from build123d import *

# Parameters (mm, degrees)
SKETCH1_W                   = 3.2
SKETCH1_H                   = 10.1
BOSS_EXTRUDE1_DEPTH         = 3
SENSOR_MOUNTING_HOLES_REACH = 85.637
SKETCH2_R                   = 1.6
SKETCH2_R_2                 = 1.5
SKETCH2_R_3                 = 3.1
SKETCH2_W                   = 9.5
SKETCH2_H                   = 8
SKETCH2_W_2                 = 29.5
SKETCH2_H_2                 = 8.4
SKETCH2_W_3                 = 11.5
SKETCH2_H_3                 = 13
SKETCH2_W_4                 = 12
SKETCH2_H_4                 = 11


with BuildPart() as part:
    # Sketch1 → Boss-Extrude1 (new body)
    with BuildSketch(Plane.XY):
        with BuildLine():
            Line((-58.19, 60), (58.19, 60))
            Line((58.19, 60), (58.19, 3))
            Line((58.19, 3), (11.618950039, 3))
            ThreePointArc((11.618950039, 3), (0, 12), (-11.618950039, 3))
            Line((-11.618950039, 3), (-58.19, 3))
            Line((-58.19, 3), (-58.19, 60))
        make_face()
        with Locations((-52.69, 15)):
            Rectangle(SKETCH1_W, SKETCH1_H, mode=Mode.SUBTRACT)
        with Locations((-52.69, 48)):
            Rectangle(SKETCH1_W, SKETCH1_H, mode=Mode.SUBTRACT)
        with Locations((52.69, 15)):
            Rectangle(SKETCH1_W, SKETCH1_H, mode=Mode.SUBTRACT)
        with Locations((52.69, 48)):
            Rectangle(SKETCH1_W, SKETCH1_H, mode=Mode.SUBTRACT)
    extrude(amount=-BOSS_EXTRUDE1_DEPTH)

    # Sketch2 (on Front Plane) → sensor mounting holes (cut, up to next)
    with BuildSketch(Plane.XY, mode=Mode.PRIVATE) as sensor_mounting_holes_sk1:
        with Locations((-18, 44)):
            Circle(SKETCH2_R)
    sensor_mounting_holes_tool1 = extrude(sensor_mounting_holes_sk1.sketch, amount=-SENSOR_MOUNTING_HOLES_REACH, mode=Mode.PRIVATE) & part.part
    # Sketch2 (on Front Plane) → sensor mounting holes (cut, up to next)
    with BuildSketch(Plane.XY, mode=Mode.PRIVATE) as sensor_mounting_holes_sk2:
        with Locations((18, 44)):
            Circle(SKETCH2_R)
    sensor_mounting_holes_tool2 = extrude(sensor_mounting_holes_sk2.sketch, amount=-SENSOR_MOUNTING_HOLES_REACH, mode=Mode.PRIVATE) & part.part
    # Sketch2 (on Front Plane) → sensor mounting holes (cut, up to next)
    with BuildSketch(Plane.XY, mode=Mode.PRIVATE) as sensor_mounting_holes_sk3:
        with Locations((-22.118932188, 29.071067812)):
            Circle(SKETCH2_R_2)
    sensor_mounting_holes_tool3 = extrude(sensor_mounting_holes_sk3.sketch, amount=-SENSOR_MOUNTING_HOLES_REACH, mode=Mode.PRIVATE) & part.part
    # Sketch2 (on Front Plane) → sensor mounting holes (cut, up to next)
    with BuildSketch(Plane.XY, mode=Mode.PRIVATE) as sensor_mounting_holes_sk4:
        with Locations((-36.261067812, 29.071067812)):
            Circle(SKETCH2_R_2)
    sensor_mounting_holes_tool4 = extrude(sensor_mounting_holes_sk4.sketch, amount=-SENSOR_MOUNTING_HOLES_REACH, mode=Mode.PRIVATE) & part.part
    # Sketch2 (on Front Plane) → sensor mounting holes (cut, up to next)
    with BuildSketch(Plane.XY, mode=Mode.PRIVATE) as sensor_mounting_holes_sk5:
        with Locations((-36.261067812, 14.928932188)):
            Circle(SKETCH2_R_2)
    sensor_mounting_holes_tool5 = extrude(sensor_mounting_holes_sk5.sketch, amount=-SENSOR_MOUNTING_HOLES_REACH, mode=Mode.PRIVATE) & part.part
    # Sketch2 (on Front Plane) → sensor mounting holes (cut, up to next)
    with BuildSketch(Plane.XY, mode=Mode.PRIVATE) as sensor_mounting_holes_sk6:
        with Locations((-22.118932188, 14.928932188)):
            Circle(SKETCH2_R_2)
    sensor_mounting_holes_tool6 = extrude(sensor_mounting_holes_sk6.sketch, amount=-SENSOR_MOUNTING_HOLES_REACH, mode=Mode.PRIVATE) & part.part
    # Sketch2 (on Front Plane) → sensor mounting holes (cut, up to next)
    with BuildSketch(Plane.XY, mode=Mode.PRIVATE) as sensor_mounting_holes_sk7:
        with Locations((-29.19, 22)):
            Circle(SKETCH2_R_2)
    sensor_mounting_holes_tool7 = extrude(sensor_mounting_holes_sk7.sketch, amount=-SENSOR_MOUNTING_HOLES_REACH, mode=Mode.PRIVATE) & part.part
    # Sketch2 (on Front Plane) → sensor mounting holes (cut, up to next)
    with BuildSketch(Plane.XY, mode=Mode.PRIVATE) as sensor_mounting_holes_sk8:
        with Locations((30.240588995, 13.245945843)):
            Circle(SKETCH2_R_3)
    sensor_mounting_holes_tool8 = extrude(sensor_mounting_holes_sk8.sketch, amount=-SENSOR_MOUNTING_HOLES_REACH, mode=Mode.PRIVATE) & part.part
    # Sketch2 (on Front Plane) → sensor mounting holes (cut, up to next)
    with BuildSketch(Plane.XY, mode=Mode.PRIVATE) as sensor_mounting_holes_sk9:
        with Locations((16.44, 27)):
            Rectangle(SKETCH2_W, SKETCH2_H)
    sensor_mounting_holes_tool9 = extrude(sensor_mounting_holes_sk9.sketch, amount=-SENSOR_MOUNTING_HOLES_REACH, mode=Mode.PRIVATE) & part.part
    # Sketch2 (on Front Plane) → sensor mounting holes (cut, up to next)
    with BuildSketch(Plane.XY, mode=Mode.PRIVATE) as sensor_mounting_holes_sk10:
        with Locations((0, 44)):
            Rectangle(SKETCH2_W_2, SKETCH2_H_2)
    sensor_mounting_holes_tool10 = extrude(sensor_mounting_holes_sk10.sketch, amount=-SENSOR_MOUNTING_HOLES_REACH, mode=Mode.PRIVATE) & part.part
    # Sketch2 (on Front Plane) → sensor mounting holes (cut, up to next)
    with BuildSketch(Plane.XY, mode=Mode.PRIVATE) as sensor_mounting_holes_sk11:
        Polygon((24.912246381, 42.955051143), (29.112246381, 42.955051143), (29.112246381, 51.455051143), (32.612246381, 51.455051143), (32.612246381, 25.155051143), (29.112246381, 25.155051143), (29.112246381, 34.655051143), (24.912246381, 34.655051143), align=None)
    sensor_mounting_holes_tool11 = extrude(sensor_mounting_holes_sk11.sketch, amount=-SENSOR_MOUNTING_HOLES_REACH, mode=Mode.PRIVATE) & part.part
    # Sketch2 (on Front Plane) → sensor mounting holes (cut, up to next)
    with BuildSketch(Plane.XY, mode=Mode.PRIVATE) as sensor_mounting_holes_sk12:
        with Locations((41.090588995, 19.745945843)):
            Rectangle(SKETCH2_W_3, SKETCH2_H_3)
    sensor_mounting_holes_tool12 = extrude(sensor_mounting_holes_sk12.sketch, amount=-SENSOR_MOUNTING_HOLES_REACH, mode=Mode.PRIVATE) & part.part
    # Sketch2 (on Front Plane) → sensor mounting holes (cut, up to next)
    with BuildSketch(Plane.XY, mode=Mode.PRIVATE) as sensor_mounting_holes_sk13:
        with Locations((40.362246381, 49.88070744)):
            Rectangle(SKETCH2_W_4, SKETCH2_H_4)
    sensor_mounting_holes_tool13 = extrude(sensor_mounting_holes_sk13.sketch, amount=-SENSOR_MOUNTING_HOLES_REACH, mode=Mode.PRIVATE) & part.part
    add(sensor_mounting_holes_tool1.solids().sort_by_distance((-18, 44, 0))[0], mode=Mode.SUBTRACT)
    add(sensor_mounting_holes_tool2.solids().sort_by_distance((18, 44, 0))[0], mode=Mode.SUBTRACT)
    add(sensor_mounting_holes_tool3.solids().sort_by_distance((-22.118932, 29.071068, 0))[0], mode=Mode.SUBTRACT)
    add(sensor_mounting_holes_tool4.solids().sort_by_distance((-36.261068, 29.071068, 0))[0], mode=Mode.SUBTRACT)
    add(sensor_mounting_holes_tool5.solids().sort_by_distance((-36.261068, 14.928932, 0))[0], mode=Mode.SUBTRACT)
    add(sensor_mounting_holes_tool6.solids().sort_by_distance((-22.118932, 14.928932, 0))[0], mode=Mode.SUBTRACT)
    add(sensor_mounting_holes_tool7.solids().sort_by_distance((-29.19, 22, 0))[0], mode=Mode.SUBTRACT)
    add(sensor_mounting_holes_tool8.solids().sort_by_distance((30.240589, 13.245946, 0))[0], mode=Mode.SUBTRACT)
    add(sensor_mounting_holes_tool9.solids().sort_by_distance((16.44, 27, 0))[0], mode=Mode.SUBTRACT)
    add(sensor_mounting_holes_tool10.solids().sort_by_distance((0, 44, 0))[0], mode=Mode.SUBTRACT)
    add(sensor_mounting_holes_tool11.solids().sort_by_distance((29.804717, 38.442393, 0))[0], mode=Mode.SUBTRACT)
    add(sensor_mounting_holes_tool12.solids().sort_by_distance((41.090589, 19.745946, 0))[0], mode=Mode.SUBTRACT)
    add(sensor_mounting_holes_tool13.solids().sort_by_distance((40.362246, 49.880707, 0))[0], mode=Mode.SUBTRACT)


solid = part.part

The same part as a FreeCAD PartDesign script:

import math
import FreeCAD as App
import Part
import Sketcher
from FreeCAD import Vector

doc = App.newDocument("Part")
body = doc.addObject("PartDesign::Body", "Body")

# Sketch on XY plane
sketch1 = body.newObject("Sketcher::SketchObject", "Sketch")
sketch1.AttachmentSupport = (doc.getObject("XY_Plane"), [""])
sketch1.MapMode = "FlatFace"
sketch1.addGeometry(Part.LineSegment(Vector(58.19, 60, 0), Vector(-58.19, 60, 0)), False)
sketch1.addGeometry(Part.LineSegment(Vector(-58.19, 60, 0), Vector(-58.19, 3, 0)), False)
sketch1.addGeometry(Part.LineSegment(Vector(-58.19, 3, 0), Vector(-11.61895, 3, 0)), False)
sketch1.addGeometry(Part.ArcOfCircle(Part.Circle(Vector(0, 0, 0), Vector(0, 0, 1), 12), math.radians(14.477512), math.radians(165.522488)), False)
sketch1.addGeometry(Part.LineSegment(Vector(11.61895, 3, 0), Vector(58.19, 3, 0)), False)
sketch1.addGeometry(Part.LineSegment(Vector(58.19, 3, 0), Vector(58.19, 60, 0)), False)
sketch1.addGeometry(Part.LineSegment(Vector(51.09, 9.95, 0), Vector(51.09, 20.05, 0)), False)
sketch1.addGeometry(Part.LineSegment(Vector(51.09, 20.05, 0), Vector(54.29, 20.05, 0)), False)
sketch1.addGeometry(Part.LineSegment(Vector(54.29, 20.05, 0), Vector(54.29, 9.95, 0)), False)
sketch1.addGeometry(Part.LineSegment(Vector(54.29, 9.95, 0), Vector(51.09, 9.95, 0)), False)
sketch1.addGeometry(Part.LineSegment(Vector(-54.29, 9.95, 0), Vector(-54.29, 20.05, 0)), False)
sketch1.addGeometry(Part.LineSegment(Vector(-54.29, 20.05, 0), Vector(-51.09, 20.05, 0)), False)
sketch1.addGeometry(Part.LineSegment(Vector(-51.09, 20.05, 0), Vector(-51.09, 9.95, 0)), False)
sketch1.addGeometry(Part.LineSegment(Vector(-51.09, 9.95, 0), Vector(-54.29, 9.95, 0)), False)
sketch1.addGeometry(Part.LineSegment(Vector(51.09, 42.95, 0), Vector(51.09, 53.05, 0)), False)
sketch1.addGeometry(Part.LineSegment(Vector(51.09, 53.05, 0), Vector(54.29, 53.05, 0)), False)
sketch1.addGeometry(Part.LineSegment(Vector(54.29, 53.05, 0), Vector(54.29, 42.95, 0)), False)
sketch1.addGeometry(Part.LineSegment(Vector(54.29, 42.95, 0), Vector(51.09, 42.95, 0)), False)
sketch1.addGeometry(Part.LineSegment(Vector(-54.29, 42.95, 0), Vector(-54.29, 53.05, 0)), False)
sketch1.addGeometry(Part.LineSegment(Vector(-54.29, 53.05, 0), Vector(-51.09, 53.05, 0)), False)
sketch1.addGeometry(Part.LineSegment(Vector(-51.09, 53.05, 0), Vector(-51.09, 42.95, 0)), False)
sketch1.addGeometry(Part.LineSegment(Vector(-51.09, 42.95, 0), Vector(-54.29, 42.95, 0)), False)
sketch1.addConstraint(Sketcher.Constraint("Coincident", 0, 2, 1, 1))
sketch1.addConstraint(Sketcher.Constraint("Coincident", 1, 2, 2, 1))
sketch1.addConstraint(Sketcher.Constraint("Coincident", 2, 2, 3, 2))
sketch1.addConstraint(Sketcher.Constraint("Coincident", 3, 1, 4, 1))
sketch1.addConstraint(Sketcher.Constraint("Coincident", 4, 2, 5, 1))
sketch1.addConstraint(Sketcher.Constraint("Coincident", 5, 2, 0, 1))
sketch1.addConstraint(Sketcher.Constraint("Coincident", 6, 2, 7, 1))
sketch1.addConstraint(Sketcher.Constraint("Coincident", 7, 2, 8, 1))
sketch1.addConstraint(Sketcher.Constraint("Coincident", 8, 2, 9, 1))
sketch1.addConstraint(Sketcher.Constraint("Coincident", 9, 2, 6, 1))
sketch1.addConstraint(Sketcher.Constraint("Coincident", 10, 2, 11, 1))
sketch1.addConstraint(Sketcher.Constraint("Coincident", 11, 2, 12, 1))
sketch1.addConstraint(Sketcher.Constraint("Coincident", 12, 2, 13, 1))
sketch1.addConstraint(Sketcher.Constraint("Coincident", 13, 2, 10, 1))
sketch1.addConstraint(Sketcher.Constraint("Coincident", 14, 2, 15, 1))
sketch1.addConstraint(Sketcher.Constraint("Coincident", 15, 2, 16, 1))
sketch1.addConstraint(Sketcher.Constraint("Coincident", 16, 2, 17, 1))
sketch1.addConstraint(Sketcher.Constraint("Coincident", 17, 2, 14, 1))
sketch1.addConstraint(Sketcher.Constraint("Coincident", 18, 2, 19, 1))
sketch1.addConstraint(Sketcher.Constraint("Coincident", 19, 2, 20, 1))
sketch1.addConstraint(Sketcher.Constraint("Coincident", 20, 2, 21, 1))
sketch1.addConstraint(Sketcher.Constraint("Coincident", 21, 2, 18, 1))
sketch1.addConstraint(Sketcher.Constraint("Horizontal", 0))
sketch1.addConstraint(Sketcher.Constraint("Vertical", 1))
sketch1.addConstraint(Sketcher.Constraint("Horizontal", 2))
sketch1.addConstraint(Sketcher.Constraint("Horizontal", 4))
sketch1.addConstraint(Sketcher.Constraint("Vertical", 5))
sketch1.addConstraint(Sketcher.Constraint("Vertical", 6))
sketch1.addConstraint(Sketcher.Constraint("Horizontal", 7))
sketch1.addConstraint(Sketcher.Constraint("Vertical", 8))
sketch1.addConstraint(Sketcher.Constraint("Horizontal", 9))
sketch1.addConstraint(Sketcher.Constraint("Vertical", 10))
sketch1.addConstraint(Sketcher.Constraint("Horizontal", 11))
sketch1.addConstraint(Sketcher.Constraint("Vertical", 12))
sketch1.addConstraint(Sketcher.Constraint("Horizontal", 13))
sketch1.addConstraint(Sketcher.Constraint("Vertical", 14))
sketch1.addConstraint(Sketcher.Constraint("Horizontal", 15))
sketch1.addConstraint(Sketcher.Constraint("Vertical", 16))
sketch1.addConstraint(Sketcher.Constraint("Horizontal", 17))
sketch1.addConstraint(Sketcher.Constraint("Vertical", 18))
sketch1.addConstraint(Sketcher.Constraint("Horizontal", 19))
sketch1.addConstraint(Sketcher.Constraint("Vertical", 20))
sketch1.addConstraint(Sketcher.Constraint("Horizontal", 21))
sketch1.addConstraint(Sketcher.Constraint("Coincident", 3, 3, -1, 1))
sketch1.addConstraint(Sketcher.Constraint("Symmetric", 1, 2, 4, 2, -2))
sketch1.addConstraint(Sketcher.Constraint("Symmetric", 7, 2, 10, 2, -2))
sketch1.addConstraint(Sketcher.Constraint("Symmetric", 9, 2, 12, 2, -2))
sketch1.addConstraint(Sketcher.Constraint("Symmetric", 15, 2, 18, 2, -2))
sketch1.addConstraint(Sketcher.Constraint("Symmetric", 17, 2, 20, 2, -2))
sketch1.addConstraint(Sketcher.Constraint("Vertical", 9, 2, 14, 2))
sketch1.addConstraint(Sketcher.Constraint("Vertical", 8, 2, 15, 2))
sketch1.addConstraint(Sketcher.Constraint("Equal", 12, 14))
sketch1.addConstraint(Sketcher.Constraint("Radius", 3, 12.0))
sketch1.addConstraint(Sketcher.Constraint("DistanceY", 1, 2, 1, 1, 57.0))
sketch1.addConstraint(Sketcher.Constraint("DistanceX", 7, 1, 7, 2, 3.2))
sketch1.addConstraint(Sketcher.Constraint("DistanceY", 6, 1, 6, 2, 10.1))
sketch1.addConstraint(Sketcher.Constraint("DistanceY", -1, 1, 0, 2, 60.0))
sketch1.addConstraint(Sketcher.Constraint("DistanceY", 6, 2, 14, 2, 33.0))
sketch1.addConstraint(Sketcher.Constraint("DistanceX", 0, 2, 0, 1, 116.38))
sketch1.addConstraint(Sketcher.Constraint("DistanceX", 6, 2, 4, 2, 7.1))
sketch1.addConstraint(Sketcher.Constraint("DistanceY", -1, 1, 6, 2, 20.05))
pad1 = body.newObject("PartDesign::Pad", "Pad")
pad1.Profile = sketch1
pad1.Length = 3
pad1.Reversed = True

# Sketch on XY plane
sketch2 = body.newObject("Sketcher::SketchObject", "Sketch001")
sketch2.AttachmentSupport = (doc.getObject("XY_Plane"), [""])
sketch2.MapMode = "FlatFace"
sketch2.addGeometry(Part.Circle(Vector(-18, 44, 0), Vector(0, 0, 1), 1.6), False)
sketch2.addConstraint(Sketcher.Constraint("Diameter", 0, 3.2))
sketch2.addConstraint(Sketcher.Constraint("DistanceX", 0, 3, -1, 1, 18.0))
sketch2.addConstraint(Sketcher.Constraint("DistanceY", -1, 1, 0, 3, 44.0))
pocket1 = body.newObject("PartDesign::Pocket", "Pocket")
pocket1.Profile = sketch2
pocket1.Type = "UpToFirst"

# Sketch on XY plane
sketch3 = body.newObject("Sketcher::SketchObject", "Sketch002")
sketch3.AttachmentSupport = (doc.getObject("XY_Plane"), [""])
sketch3.MapMode = "FlatFace"
sketch3.addGeometry(Part.Circle(Vector(18, 44, 0), Vector(0, 0, 1), 1.6), False)
sketch3.addConstraint(Sketcher.Constraint("Diameter", 0, 3.2))
sketch3.addConstraint(Sketcher.Constraint("DistanceX", -1, 1, 0, 3, 18.0))
sketch3.addConstraint(Sketcher.Constraint("DistanceY", -1, 1, 0, 3, 44.0))
pocket2 = body.newObject("PartDesign::Pocket", "Pocket001")
pocket2.Profile = sketch3
pocket2.Type = "UpToFirst"

# Sketch on XY plane
sketch4 = body.newObject("Sketcher::SketchObject", "Sketch003")
sketch4.AttachmentSupport = (doc.getObject("XY_Plane"), [""])
sketch4.MapMode = "FlatFace"
sketch4.addGeometry(Part.Circle(Vector(-22.118932, 29.071068, 0), Vector(0, 0, 1), 1.5), False)
sketch4.addConstraint(Sketcher.Constraint("Diameter", 0, 3.0))
sketch4.addConstraint(Sketcher.Constraint("DistanceX", 0, 3, -1, 1, 22.118932))
sketch4.addConstraint(Sketcher.Constraint("DistanceY", -1, 1, 0, 3, 29.071068))
pocket3 = body.newObject("PartDesign::Pocket", "Pocket002")
pocket3.Profile = sketch4
pocket3.Type = "UpToFirst"

# Sketch on XY plane
sketch5 = body.newObject("Sketcher::SketchObject", "Sketch004")
sketch5.AttachmentSupport = (doc.getObject("XY_Plane"), [""])
sketch5.MapMode = "FlatFace"
sketch5.addGeometry(Part.Circle(Vector(-36.261068, 29.071068, 0), Vector(0, 0, 1), 1.5), False)
sketch5.addConstraint(Sketcher.Constraint("Diameter", 0, 3.0))
sketch5.addConstraint(Sketcher.Constraint("DistanceX", 0, 3, -1, 1, 36.261068))
sketch5.addConstraint(Sketcher.Constraint("DistanceY", -1, 1, 0, 3, 29.071068))
pocket4 = body.newObject("PartDesign::Pocket", "Pocket003")
pocket4.Profile = sketch5
pocket4.Type = "UpToFirst"

# Sketch on XY plane
sketch6 = body.newObject("Sketcher::SketchObject", "Sketch005")
sketch6.AttachmentSupport = (doc.getObject("XY_Plane"), [""])
sketch6.MapMode = "FlatFace"
sketch6.addGeometry(Part.Circle(Vector(-36.261068, 14.928932, 0), Vector(0, 0, 1), 1.5), False)
sketch6.addConstraint(Sketcher.Constraint("Diameter", 0, 3.0))
sketch6.addConstraint(Sketcher.Constraint("DistanceX", 0, 3, -1, 1, 36.261068))
sketch6.addConstraint(Sketcher.Constraint("DistanceY", -1, 1, 0, 3, 14.928932))
pocket5 = body.newObject("PartDesign::Pocket", "Pocket004")
pocket5.Profile = sketch6
pocket5.Type = "UpToFirst"

# Sketch on XY plane
sketch7 = body.newObject("Sketcher::SketchObject", "Sketch006")
sketch7.AttachmentSupport = (doc.getObject("XY_Plane"), [""])
sketch7.MapMode = "FlatFace"
sketch7.addGeometry(Part.Circle(Vector(-22.118932, 14.928932, 0), Vector(0, 0, 1), 1.5), False)
sketch7.addConstraint(Sketcher.Constraint("Diameter", 0, 3.0))
sketch7.addConstraint(Sketcher.Constraint("DistanceX", 0, 3, -1, 1, 22.118932))
sketch7.addConstraint(Sketcher.Constraint("DistanceY", -1, 1, 0, 3, 14.928932))
pocket6 = body.newObject("PartDesign::Pocket", "Pocket005")
pocket6.Profile = sketch7
pocket6.Type = "UpToFirst"

# Sketch on XY plane
sketch8 = body.newObject("Sketcher::SketchObject", "Sketch007")
sketch8.AttachmentSupport = (doc.getObject("XY_Plane"), [""])
sketch8.MapMode = "FlatFace"
sketch8.addGeometry(Part.Circle(Vector(-29.19, 22, 0), Vector(0, 0, 1), 1.5), False)
sketch8.addConstraint(Sketcher.Constraint("Diameter", 0, 3.0))
sketch8.addConstraint(Sketcher.Constraint("DistanceY", -1, 1, 0, 3, 22.0))
sketch8.addConstraint(Sketcher.Constraint("DistanceX", 0, 3, -1, 1, 29.19))
pocket7 = body.newObject("PartDesign::Pocket", "Pocket006")
pocket7.Profile = sketch8
pocket7.Type = "UpToFirst"

# Sketch on XY plane
sketch9 = body.newObject("Sketcher::SketchObject", "Sketch008")
sketch9.AttachmentSupport = (doc.getObject("XY_Plane"), [""])
sketch9.MapMode = "FlatFace"
sketch9.addGeometry(Part.Circle(Vector(30.240589, 13.245946, 0), Vector(0, 0, 1), 3.1), False)
sketch9.addConstraint(Sketcher.Constraint("Diameter", 0, 6.2))
sketch9.addConstraint(Sketcher.Constraint("DistanceX", -1, 1, 0, 3, 30.240589))
sketch9.addConstraint(Sketcher.Constraint("DistanceY", -1, 1, 0, 3, 13.245946))
pocket8 = body.newObject("PartDesign::Pocket", "Pocket007")
pocket8.Profile = sketch9
pocket8.Type = "UpToFirst"

# Sketch on XY plane
sketch10 = body.newObject("Sketcher::SketchObject", "Sketch009")
sketch10.AttachmentSupport = (doc.getObject("XY_Plane"), [""])
sketch10.MapMode = "FlatFace"
sketch10.addGeometry(Part.LineSegment(Vector(11.69, 31, 0), Vector(11.69, 23, 0)), False)
sketch10.addGeometry(Part.LineSegment(Vector(11.69, 23, 0), Vector(21.19, 23, 0)), False)
sketch10.addGeometry(Part.LineSegment(Vector(21.19, 23, 0), Vector(21.19, 31, 0)), False)
sketch10.addGeometry(Part.LineSegment(Vector(21.19, 31, 0), Vector(11.69, 31, 0)), False)
sketch10.addConstraint(Sketcher.Constraint("Coincident", 0, 2, 1, 1))
sketch10.addConstraint(Sketcher.Constraint("Coincident", 1, 2, 2, 1))
sketch10.addConstraint(Sketcher.Constraint("Coincident", 2, 2, 3, 1))
sketch10.addConstraint(Sketcher.Constraint("Coincident", 3, 2, 0, 1))
sketch10.addConstraint(Sketcher.Constraint("Vertical", 0))
sketch10.addConstraint(Sketcher.Constraint("Horizontal", 1))
sketch10.addConstraint(Sketcher.Constraint("Vertical", 2))
sketch10.addConstraint(Sketcher.Constraint("Horizontal", 3))
sketch10.addConstraint(Sketcher.Constraint("DistanceY", 0, 2, 0, 1, 8.0))
sketch10.addConstraint(Sketcher.Constraint("DistanceX", 1, 1, 1, 2, 9.5))
sketch10.addConstraint(Sketcher.Constraint("DistanceY", -1, 1, 0, 2, 23.0))
sketch10.addConstraint(Sketcher.Constraint("DistanceX", -1, 1, 0, 2, 11.69))
pocket9 = body.newObject("PartDesign::Pocket", "Pocket008")
pocket9.Profile = sketch10
pocket9.Type = "UpToFirst"

# Sketch on XY plane
sketch11 = body.newObject("Sketcher::SketchObject", "Sketch010")
sketch11.AttachmentSupport = (doc.getObject("XY_Plane"), [""])
sketch11.MapMode = "FlatFace"
sketch11.addGeometry(Part.LineSegment(Vector(-14.75, 48.2, 0), Vector(-14.75, 39.8, 0)), False)
sketch11.addGeometry(Part.LineSegment(Vector(-14.75, 39.8, 0), Vector(14.75, 39.8, 0)), False)
sketch11.addGeometry(Part.LineSegment(Vector(14.75, 39.8, 0), Vector(14.75, 48.2, 0)), False)
sketch11.addGeometry(Part.LineSegment(Vector(14.75, 48.2, 0), Vector(-14.75, 48.2, 0)), False)
sketch11.addConstraint(Sketcher.Constraint("Coincident", 0, 2, 1, 1))
sketch11.addConstraint(Sketcher.Constraint("Coincident", 1, 2, 2, 1))
sketch11.addConstraint(Sketcher.Constraint("Coincident", 2, 2, 3, 1))
sketch11.addConstraint(Sketcher.Constraint("Coincident", 3, 2, 0, 1))
sketch11.addConstraint(Sketcher.Constraint("Vertical", 0))
sketch11.addConstraint(Sketcher.Constraint("Horizontal", 1))
sketch11.addConstraint(Sketcher.Constraint("Vertical", 2))
sketch11.addConstraint(Sketcher.Constraint("Horizontal", 3))
sketch11.addConstraint(Sketcher.Constraint("DistanceX", 1, 1, 1, 2, 29.5))
sketch11.addConstraint(Sketcher.Constraint("DistanceY", 0, 2, 0, 1, 8.4))
sketch11.addConstraint(Sketcher.Constraint("DistanceY", -1, 1, 0, 2, 39.8))
sketch11.addConstraint(Sketcher.Constraint("DistanceX", 0, 2, -1, 1, 14.75))
pocket10 = body.newObject("PartDesign::Pocket", "Pocket009")
pocket10.Profile = sketch11
pocket10.Type = "UpToFirst"

# Sketch on XY plane
sketch12 = body.newObject("Sketcher::SketchObject", "Sketch011")
sketch12.AttachmentSupport = (doc.getObject("XY_Plane"), [""])
sketch12.MapMode = "FlatFace"
sketch12.addGeometry(Part.LineSegment(Vector(29.112246, 42.955051, 0), Vector(24.912246, 42.955051, 0)), False)
sketch12.addGeometry(Part.LineSegment(Vector(24.912246, 42.955051, 0), Vector(24.912246, 34.655051, 0)), False)
sketch12.addGeometry(Part.LineSegment(Vector(24.912246, 34.655051, 0), Vector(29.112246, 34.655051, 0)), False)
sketch12.addGeometry(Part.LineSegment(Vector(29.112246, 34.655051, 0), Vector(29.112246, 25.155051, 0)), False)
sketch12.addGeometry(Part.LineSegment(Vector(29.112246, 25.155051, 0), Vector(32.612246, 25.155051, 0)), False)
sketch12.addGeometry(Part.LineSegment(Vector(32.612246, 25.155051, 0), Vector(32.612246, 51.455051, 0)), False)
sketch12.addGeometry(Part.LineSegment(Vector(32.612246, 51.455051, 0), Vector(29.112246, 51.455051, 0)), False)
sketch12.addGeometry(Part.LineSegment(Vector(29.112246, 51.455051, 0), Vector(29.112246, 42.955051, 0)), False)
sketch12.addConstraint(Sketcher.Constraint("Coincident", 0, 2, 1, 1))
sketch12.addConstraint(Sketcher.Constraint("Coincident", 1, 2, 2, 1))
sketch12.addConstraint(Sketcher.Constraint("Coincident", 2, 2, 3, 1))
sketch12.addConstraint(Sketcher.Constraint("Coincident", 3, 2, 4, 1))
sketch12.addConstraint(Sketcher.Constraint("Coincident", 4, 2, 5, 1))
sketch12.addConstraint(Sketcher.Constraint("Coincident", 5, 2, 6, 1))
sketch12.addConstraint(Sketcher.Constraint("Coincident", 6, 2, 7, 1))
sketch12.addConstraint(Sketcher.Constraint("Coincident", 7, 2, 0, 1))
sketch12.addConstraint(Sketcher.Constraint("Horizontal", 0))
sketch12.addConstraint(Sketcher.Constraint("Vertical", 1))
sketch12.addConstraint(Sketcher.Constraint("Horizontal", 2))
sketch12.addConstraint(Sketcher.Constraint("Vertical", 3))
sketch12.addConstraint(Sketcher.Constraint("Horizontal", 4))
sketch12.addConstraint(Sketcher.Constraint("Vertical", 5))
sketch12.addConstraint(Sketcher.Constraint("Horizontal", 6))
sketch12.addConstraint(Sketcher.Constraint("Vertical", 7))
sketch12.addConstraint(Sketcher.Constraint("Vertical", 3, 2, 6, 2))
sketch12.addConstraint(Sketcher.Constraint("DistanceX", 0, 2, 0, 1, 4.2))
sketch12.addConstraint(Sketcher.Constraint("DistanceX", 4, 1, 4, 2, 3.5))
sketch12.addConstraint(Sketcher.Constraint("DistanceY", 1, 2, 1, 1, 8.3))
sketch12.addConstraint(Sketcher.Constraint("DistanceY", 3, 2, 3, 1, 9.5))
sketch12.addConstraint(Sketcher.Constraint("DistanceY", 5, 1, 5, 2, 26.3))
sketch12.addConstraint(Sketcher.Constraint("DistanceY", -1, 1, 0, 2, 42.955051))
sketch12.addConstraint(Sketcher.Constraint("DistanceX", -1, 1, 0, 2, 24.912246))
pocket11 = body.newObject("PartDesign::Pocket", "Pocket010")
pocket11.Profile = sketch12
pocket11.Type = "UpToFirst"

# Sketch on XY plane
sketch13 = body.newObject("Sketcher::SketchObject", "Sketch012")
sketch13.AttachmentSupport = (doc.getObject("XY_Plane"), [""])
sketch13.MapMode = "FlatFace"
sketch13.addGeometry(Part.LineSegment(Vector(35.340589, 26.245946, 0), Vector(35.340589, 13.245946, 0)), False)
sketch13.addGeometry(Part.LineSegment(Vector(35.340589, 13.245946, 0), Vector(46.840589, 13.245946, 0)), False)
sketch13.addGeometry(Part.LineSegment(Vector(46.840589, 13.245946, 0), Vector(46.840589, 26.245946, 0)), False)
sketch13.addGeometry(Part.LineSegment(Vector(46.840589, 26.245946, 0), Vector(35.340589, 26.245946, 0)), False)
sketch13.addConstraint(Sketcher.Constraint("Coincident", 0, 2, 1, 1))
sketch13.addConstraint(Sketcher.Constraint("Coincident", 1, 2, 2, 1))
sketch13.addConstraint(Sketcher.Constraint("Coincident", 2, 2, 3, 1))
sketch13.addConstraint(Sketcher.Constraint("Coincident", 3, 2, 0, 1))
sketch13.addConstraint(Sketcher.Constraint("Vertical", 0))
sketch13.addConstraint(Sketcher.Constraint("Horizontal", 1))
sketch13.addConstraint(Sketcher.Constraint("Vertical", 2))
sketch13.addConstraint(Sketcher.Constraint("Horizontal", 3))
sketch13.addConstraint(Sketcher.Constraint("DistanceY", 0, 2, 0, 1, 13.0))
sketch13.addConstraint(Sketcher.Constraint("DistanceX", 1, 1, 1, 2, 11.5))
sketch13.addConstraint(Sketcher.Constraint("DistanceX", -1, 1, 0, 2, 35.340589))
sketch13.addConstraint(Sketcher.Constraint("DistanceY", -1, 1, 0, 2, 13.245946))
pocket12 = body.newObject("PartDesign::Pocket", "Pocket011")
pocket12.Profile = sketch13
pocket12.Type = "UpToFirst"

# Sketch on XY plane
sketch14 = body.newObject("Sketcher::SketchObject", "Sketch013")
sketch14.AttachmentSupport = (doc.getObject("XY_Plane"), [""])
sketch14.MapMode = "FlatFace"
sketch14.addGeometry(Part.LineSegment(Vector(34.362246, 55.380707, 0), Vector(34.362246, 44.380707, 0)), False)
sketch14.addGeometry(Part.LineSegment(Vector(34.362246, 44.380707, 0), Vector(46.362246, 44.380707, 0)), False)
sketch14.addGeometry(Part.LineSegment(Vector(46.362246, 44.380707, 0), Vector(46.362246, 55.380707, 0)), False)
sketch14.addGeometry(Part.LineSegment(Vector(46.362246, 55.380707, 0), Vector(34.362246, 55.380707, 0)), False)
sketch14.addConstraint(Sketcher.Constraint("Coincident", 0, 2, 1, 1))
sketch14.addConstraint(Sketcher.Constraint("Coincident", 1, 2, 2, 1))
sketch14.addConstraint(Sketcher.Constraint("Coincident", 2, 2, 3, 1))
sketch14.addConstraint(Sketcher.Constraint("Coincident", 3, 2, 0, 1))
sketch14.addConstraint(Sketcher.Constraint("Vertical", 0))
sketch14.addConstraint(Sketcher.Constraint("Horizontal", 1))
sketch14.addConstraint(Sketcher.Constraint("Vertical", 2))
sketch14.addConstraint(Sketcher.Constraint("Horizontal", 3))
sketch14.addConstraint(Sketcher.Constraint("DistanceX", 1, 1, 1, 2, 12.0))
sketch14.addConstraint(Sketcher.Constraint("DistanceY", 0, 2, 0, 1, 11.0))
sketch14.addConstraint(Sketcher.Constraint("DistanceX", -1, 1, 0, 2, 34.362246))
sketch14.addConstraint(Sketcher.Constraint("DistanceY", -1, 1, 0, 2, 44.380707))
pocket13 = body.newObject("PartDesign::Pocket", "Pocket012")
pocket13.Profile = sketch14
pocket13.Type = "UpToFirst"

doc.recompute()
